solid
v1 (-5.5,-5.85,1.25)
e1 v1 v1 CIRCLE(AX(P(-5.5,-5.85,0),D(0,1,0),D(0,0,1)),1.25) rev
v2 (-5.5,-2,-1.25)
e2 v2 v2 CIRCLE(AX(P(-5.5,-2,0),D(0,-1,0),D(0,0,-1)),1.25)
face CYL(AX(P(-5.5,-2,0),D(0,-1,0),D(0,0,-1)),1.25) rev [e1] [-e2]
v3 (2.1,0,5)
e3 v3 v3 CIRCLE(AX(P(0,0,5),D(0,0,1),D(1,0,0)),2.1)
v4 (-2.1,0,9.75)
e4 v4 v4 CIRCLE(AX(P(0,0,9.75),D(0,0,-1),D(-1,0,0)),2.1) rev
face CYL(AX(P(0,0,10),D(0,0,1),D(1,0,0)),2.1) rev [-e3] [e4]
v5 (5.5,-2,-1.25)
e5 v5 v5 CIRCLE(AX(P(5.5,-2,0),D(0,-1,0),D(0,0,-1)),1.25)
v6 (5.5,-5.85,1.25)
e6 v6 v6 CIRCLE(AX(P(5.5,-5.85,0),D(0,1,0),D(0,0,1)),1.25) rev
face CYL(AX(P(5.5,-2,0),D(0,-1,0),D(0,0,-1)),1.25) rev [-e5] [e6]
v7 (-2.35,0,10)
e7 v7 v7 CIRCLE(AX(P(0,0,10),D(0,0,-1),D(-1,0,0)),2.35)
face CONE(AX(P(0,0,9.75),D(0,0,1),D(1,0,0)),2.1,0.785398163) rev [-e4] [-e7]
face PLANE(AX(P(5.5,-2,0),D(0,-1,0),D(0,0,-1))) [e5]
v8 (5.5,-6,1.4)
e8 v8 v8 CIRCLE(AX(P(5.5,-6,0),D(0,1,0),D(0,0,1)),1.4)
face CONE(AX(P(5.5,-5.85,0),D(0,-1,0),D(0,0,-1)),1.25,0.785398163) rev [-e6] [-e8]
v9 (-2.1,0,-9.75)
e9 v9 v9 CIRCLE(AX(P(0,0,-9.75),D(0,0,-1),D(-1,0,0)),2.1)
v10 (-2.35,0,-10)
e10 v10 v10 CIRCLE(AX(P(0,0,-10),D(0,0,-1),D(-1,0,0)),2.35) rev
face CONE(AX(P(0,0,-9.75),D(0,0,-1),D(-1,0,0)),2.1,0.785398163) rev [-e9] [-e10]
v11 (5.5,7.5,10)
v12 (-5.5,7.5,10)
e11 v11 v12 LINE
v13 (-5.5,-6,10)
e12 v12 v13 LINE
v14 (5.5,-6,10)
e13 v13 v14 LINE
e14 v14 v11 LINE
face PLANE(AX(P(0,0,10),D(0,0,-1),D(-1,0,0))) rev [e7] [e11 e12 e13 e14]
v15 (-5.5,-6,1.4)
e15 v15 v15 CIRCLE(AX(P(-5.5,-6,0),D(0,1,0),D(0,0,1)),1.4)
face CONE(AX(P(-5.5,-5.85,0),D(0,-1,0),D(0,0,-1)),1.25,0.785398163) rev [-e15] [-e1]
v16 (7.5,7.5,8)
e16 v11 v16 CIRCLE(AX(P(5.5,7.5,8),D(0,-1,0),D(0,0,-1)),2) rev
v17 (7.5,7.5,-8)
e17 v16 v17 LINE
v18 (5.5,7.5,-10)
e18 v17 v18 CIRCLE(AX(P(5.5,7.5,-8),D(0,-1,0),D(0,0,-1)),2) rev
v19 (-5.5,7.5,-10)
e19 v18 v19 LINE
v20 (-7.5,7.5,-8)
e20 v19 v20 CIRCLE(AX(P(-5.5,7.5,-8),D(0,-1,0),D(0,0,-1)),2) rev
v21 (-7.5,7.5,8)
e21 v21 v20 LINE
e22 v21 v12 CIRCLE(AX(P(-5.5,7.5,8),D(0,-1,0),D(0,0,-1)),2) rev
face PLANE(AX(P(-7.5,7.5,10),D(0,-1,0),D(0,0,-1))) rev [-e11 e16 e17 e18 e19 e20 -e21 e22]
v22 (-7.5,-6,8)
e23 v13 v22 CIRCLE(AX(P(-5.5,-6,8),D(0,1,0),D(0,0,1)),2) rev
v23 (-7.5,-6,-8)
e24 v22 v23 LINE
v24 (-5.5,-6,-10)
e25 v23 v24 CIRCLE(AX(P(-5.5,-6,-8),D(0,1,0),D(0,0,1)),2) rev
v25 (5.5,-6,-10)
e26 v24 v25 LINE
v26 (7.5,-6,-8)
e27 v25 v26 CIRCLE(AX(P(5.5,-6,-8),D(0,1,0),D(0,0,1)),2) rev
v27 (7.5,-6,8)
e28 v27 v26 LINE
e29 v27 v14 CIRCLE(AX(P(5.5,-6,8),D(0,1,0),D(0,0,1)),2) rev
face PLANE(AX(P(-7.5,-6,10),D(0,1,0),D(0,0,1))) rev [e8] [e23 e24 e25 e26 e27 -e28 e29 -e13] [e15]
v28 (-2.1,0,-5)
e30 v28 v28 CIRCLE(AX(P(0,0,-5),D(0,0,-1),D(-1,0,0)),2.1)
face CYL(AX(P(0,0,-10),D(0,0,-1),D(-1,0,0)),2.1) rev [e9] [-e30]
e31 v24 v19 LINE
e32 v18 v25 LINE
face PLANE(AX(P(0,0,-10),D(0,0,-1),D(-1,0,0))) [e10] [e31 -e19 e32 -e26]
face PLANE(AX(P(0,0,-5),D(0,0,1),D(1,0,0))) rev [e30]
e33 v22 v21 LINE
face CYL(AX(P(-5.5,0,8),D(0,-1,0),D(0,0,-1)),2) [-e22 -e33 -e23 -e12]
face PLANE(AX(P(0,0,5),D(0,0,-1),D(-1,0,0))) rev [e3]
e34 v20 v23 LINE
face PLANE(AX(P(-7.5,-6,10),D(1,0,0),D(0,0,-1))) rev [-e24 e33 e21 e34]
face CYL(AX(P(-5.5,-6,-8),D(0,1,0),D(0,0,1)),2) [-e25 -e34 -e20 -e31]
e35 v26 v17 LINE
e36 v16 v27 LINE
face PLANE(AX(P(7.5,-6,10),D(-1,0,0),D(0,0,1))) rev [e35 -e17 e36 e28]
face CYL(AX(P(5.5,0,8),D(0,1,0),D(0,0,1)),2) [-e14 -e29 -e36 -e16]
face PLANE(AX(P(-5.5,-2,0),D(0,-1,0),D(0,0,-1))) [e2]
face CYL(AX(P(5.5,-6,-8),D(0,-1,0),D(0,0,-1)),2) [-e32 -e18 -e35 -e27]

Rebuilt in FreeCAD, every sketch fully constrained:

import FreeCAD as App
import Part
import Sketcher
from FreeCAD import Vector
Q = App.Units.Quantity


def edges_at(feature, points):
    """Names of the edges that pass closest to the given points."""
    edges = feature.Shape.Edges
    near = lambda p: min(range(len(edges)), key=lambda i: edges[i].distToShape(Part.Vertex(*p))[0])
    return sorted({f"Edge{near(p) + 1}" for p in points})


def add_polygon(sketch, points):
    """Adds a closed chain of lines whose ends are joined by coincident constraints."""
    first, n = sketch.GeometryCount, len(points)
    for a, b in zip(points, points[1:] + points[:1]):
        sketch.addGeometry(Part.LineSegment(App.Vector(*a, 0), App.Vector(*b, 0)), False)
    for i in range(n):
        sketch.addConstraint(Sketcher.Constraint("Coincident", first + i, 2, first + (i + 1) % n, 1))

doc = App.newDocument("Part")
body = doc.addObject("PartDesign::Body", "Body")

# Sketch on XY plane
sketch1 = body.newObject("Sketcher::SketchObject", "Sketch")
sketch1.AttachmentSupport = (doc.getObject("XY_Plane"), [""])
sketch1.MapMode = "FlatFace"
add_polygon(sketch1, [(-8, 8), (-8, -6), (8, -6), (8, 8)])  # lines 0-3
sketch1.addConstraint([
    Sketcher.Constraint("Vertical", 0),
    Sketcher.Constraint("Horizontal", 1),
    Sketcher.Constraint("Vertical", 2),
    Sketcher.Constraint("Horizontal", 3),
    Sketcher.Constraint("DistanceX", 1, 1, 1, 2, Q("15 mm")),
    Sketcher.Constraint("DistanceY", 0, 2, 0, 1, Q("13.5 mm")),
    Sketcher.Constraint("DistanceY", 0, 2, -1, 1, Q("6 mm")),
    Sketcher.Constraint("DistanceX", 0, 2, -1, 1, Q("7.5 mm")),
])
pad1 = body.newObject("PartDesign::Pad", "Pad")
pad1.Profile = sketch1
pad1.Length = 20
pad1.Midplane = True
doc.recompute()

fillet = body.newObject("PartDesign::Fillet", "Fillet")
fillet.Base = (pad1, edges_at(pad1, [
    (-7.5, 0.75, 10),
    (7.5, 0.75, 10),
    (-7.5, 0.75, -10),
    (7.5, 0.75, -10),
]))
fillet.Radius = 2

# Sketch on XY plane
sketch2 = body.newObject("Sketcher::SketchObject", "Sketch001")
sketch2.AttachmentSupport = (doc.getObject("XY_Plane"), [""])
sketch2.MapMode = "FlatFace"
sketch2.AttachmentOffset = App.Placement(Vector(0, 0, 10), App.Rotation())
sketch2.addGeometry(Part.Circle(Vector(0, 0, 0), Vector(0, 0, 1), 2.1), False)
sketch2.addConstraint([
    Sketcher.Constraint("Coincident", 0, 3, -1, 1),
    Sketcher.Constraint("Diameter", 0, Q("4.2 mm")),
])
doc.recompute()
hole = body.newObject("PartDesign::Hole", "Hole")
hole.Profile = sketch2
hole.ThreadType = "None"
hole.Diameter = 4.2
hole.DepthType = "Dimension"
hole.Depth = 5
hole.DrillPoint = "Flat"

# Sketch on XY plane
sketch3 = body.newObject("Sketcher::SketchObject", "Sketch002")
sketch3.AttachmentSupport = (doc.getObject("XY_Plane"), [""])
sketch3.MapMode = "FlatFace"
sketch3.AttachmentOffset = App.Placement(Vector(0, 0, -10), App.Rotation())
sketch3.addGeometry(Part.Circle(Vector(0, 0, 0), Vector(0, 0, 1), 2.1), False)
sketch3.addConstraint([
    Sketcher.Constraint("Coincident", 0, 3, -1, 1),
    Sketcher.Constraint("Diameter", 0, Q("4.2 mm")),
])
doc.recompute()
hole2 = body.newObject("PartDesign::Hole", "Hole001")
hole2.Profile = sketch3
hole2.ThreadType = "None"
hole2.Diameter = 4.2
hole2.DepthType = "Dimension"
hole2.Depth = 5
hole2.DrillPoint = "Flat"
hole2.Reversed = True
doc.recompute()

chamfer = body.newObject("PartDesign::Chamfer", "Chamfer")
chamfer.Base = (hole2, edges_at(hole2, [(-2.1, 0, -10), (2.1, 0, 10)]))
chamfer.Size = 0.25

# Sketch on XZ plane
sketch4 = body.newObject("Sketcher::SketchObject", "Sketch003")
sketch4.AttachmentSupport = (doc.getObject("XZ_Plane"), [""])
sketch4.MapMode = "FlatFace"
sketch4.AttachmentOffset = App.Placement(Vector(0, 0, 6), App.Rotation())
sketch4.addGeometry([
    Part.Circle(Vector(-5.5, 0, 0), Vector(0, 0, 1), 1.2),
    Part.Circle(Vector(5.5, 0, 0), Vector(0, 0, 1), 1.2),
], False)
sketch4.addConstraint([
    Sketcher.Constraint("Equal", 0, 1),
    Sketcher.Constraint("Symmetric", 0, 3, 1, 3, -1, 1),
    Sketcher.Constraint("PointOnObject", 0, 3, -1),
    Sketcher.Constraint("Diameter", 0, Q("2.5 mm")),
    Sketcher.Constraint("DistanceX", 0, 3, 1, 3, Q("11 mm")),
])
pocket1 = body.newObject("PartDesign::Pocket", "Pocket")
pocket1.Profile = sketch4
pocket1.Length = 4
doc.recompute()

chamfer2 = body.newObject("PartDesign::Chamfer", "Chamfer001")
chamfer2.Base = (pocket1, edges_at(pocket1, [(-5.5, -6, 1.25), (5.5, -6, 1.25)]))
chamfer2.Size = 0.15

doc.recompute()
